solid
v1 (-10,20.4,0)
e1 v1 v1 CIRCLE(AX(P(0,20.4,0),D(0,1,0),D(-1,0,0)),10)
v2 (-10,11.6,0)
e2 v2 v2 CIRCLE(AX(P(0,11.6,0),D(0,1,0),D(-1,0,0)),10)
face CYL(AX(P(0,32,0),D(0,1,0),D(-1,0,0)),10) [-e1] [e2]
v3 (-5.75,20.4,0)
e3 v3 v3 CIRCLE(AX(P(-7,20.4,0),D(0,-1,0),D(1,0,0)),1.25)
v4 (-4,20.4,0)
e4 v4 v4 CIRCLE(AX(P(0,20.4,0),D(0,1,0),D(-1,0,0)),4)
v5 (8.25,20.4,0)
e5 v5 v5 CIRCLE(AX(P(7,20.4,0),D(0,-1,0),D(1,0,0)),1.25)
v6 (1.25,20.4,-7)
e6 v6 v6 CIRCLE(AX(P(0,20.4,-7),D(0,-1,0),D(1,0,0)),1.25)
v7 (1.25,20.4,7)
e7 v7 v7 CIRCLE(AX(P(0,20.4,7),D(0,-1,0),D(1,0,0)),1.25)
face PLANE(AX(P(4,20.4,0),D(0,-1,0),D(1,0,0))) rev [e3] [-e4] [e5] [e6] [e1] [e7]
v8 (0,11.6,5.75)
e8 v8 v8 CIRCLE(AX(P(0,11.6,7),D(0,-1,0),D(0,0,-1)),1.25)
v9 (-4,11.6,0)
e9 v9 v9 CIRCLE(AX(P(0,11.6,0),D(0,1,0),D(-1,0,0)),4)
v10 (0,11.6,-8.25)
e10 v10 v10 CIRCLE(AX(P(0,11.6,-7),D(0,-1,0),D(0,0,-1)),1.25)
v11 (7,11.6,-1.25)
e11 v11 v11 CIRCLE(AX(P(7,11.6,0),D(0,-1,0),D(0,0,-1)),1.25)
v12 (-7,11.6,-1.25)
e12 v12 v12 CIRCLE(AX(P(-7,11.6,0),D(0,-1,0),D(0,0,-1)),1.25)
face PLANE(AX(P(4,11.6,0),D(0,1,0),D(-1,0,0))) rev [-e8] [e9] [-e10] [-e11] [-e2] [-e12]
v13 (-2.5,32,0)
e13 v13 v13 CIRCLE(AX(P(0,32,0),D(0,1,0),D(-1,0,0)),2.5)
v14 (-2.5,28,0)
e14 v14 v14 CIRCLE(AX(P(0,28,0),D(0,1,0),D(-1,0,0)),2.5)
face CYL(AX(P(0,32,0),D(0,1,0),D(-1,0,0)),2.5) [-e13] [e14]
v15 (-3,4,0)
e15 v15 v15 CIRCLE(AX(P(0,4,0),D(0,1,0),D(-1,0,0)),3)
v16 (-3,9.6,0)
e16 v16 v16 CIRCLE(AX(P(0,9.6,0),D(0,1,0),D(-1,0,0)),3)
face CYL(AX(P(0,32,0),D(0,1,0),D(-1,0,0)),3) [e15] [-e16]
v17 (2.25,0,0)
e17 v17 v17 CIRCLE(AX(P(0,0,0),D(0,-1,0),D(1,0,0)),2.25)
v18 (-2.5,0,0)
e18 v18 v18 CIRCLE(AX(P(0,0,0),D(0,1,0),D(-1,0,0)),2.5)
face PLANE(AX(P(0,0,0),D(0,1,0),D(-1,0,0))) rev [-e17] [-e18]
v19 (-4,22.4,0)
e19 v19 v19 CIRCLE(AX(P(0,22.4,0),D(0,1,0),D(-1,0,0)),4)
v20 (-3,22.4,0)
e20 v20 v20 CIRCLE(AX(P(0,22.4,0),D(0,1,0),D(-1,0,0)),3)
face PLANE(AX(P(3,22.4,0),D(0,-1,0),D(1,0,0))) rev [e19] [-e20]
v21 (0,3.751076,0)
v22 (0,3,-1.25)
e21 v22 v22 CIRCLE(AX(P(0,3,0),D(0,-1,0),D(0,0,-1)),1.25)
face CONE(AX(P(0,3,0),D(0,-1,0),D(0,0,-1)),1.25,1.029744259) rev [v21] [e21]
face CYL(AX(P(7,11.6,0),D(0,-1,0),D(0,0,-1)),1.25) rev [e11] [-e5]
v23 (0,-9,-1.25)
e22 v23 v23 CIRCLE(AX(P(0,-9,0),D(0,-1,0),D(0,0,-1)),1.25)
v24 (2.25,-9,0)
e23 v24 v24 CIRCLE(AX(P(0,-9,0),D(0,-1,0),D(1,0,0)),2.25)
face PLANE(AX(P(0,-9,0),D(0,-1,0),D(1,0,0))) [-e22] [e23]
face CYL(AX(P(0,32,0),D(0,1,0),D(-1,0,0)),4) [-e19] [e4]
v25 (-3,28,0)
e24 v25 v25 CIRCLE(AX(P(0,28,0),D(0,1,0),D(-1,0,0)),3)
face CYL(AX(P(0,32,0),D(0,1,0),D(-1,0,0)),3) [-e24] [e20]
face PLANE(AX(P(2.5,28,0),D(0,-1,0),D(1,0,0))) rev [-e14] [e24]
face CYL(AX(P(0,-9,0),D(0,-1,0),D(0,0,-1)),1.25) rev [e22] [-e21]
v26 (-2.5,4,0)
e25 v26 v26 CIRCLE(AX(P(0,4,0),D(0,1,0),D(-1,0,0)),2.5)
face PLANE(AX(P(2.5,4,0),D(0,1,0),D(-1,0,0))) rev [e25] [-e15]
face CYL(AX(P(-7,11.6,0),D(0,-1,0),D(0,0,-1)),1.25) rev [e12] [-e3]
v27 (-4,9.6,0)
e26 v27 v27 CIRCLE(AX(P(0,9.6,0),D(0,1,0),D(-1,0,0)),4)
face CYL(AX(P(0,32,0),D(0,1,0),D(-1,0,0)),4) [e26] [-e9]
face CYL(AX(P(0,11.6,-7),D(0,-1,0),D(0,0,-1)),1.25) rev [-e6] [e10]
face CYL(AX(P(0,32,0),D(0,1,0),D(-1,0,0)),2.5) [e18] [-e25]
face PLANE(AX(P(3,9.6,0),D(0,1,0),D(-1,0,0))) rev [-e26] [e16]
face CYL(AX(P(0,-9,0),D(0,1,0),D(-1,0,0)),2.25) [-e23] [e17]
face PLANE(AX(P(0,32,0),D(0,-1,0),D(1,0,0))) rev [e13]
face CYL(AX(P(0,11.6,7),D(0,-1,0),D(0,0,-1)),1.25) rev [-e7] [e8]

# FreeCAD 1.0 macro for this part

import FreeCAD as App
import Part
import Sketcher

V = App.Vector
Q = App.Units.Quantity


def add_polygon(sketch, points):
    """Adds a closed chain of lines whose ends are joined by coincident constraints."""
    first, n = sketch.GeometryCount, len(points)
    for a, b in zip(points, points[1:] + points[:1]):
        sketch.addGeometry(Part.LineSegment(App.Vector(*a, 0), App.Vector(*b, 0)), False)
    for i in range(n):
        sketch.addConstraint(Sketcher.Constraint("Coincident", first + i, 2, first + (i + 1) % n, 1))

doc = App.newDocument("Part")
params = doc.addObject("Spreadsheet::Sheet", "Params")
for row, (alias, value) in enumerate([
    ("sketch1_width", "1 mm"),
    ("sketch1_width2", "6 mm"),
    ("sketch1_height", "32 mm"),
    ("sketch1_height2", "4 mm"),
    ("sketch1_height3", "2 mm"),
    ("revolution_angle", "360 deg"),
    ("sketch2_diameter", "2.5 mm"),
    ("hole_diameter", "2.5 mm"),
    ("sketch3_diameter", "4.5 mm"),
    ("pad1_length", "9 mm"),
    ("sketch4_diameter", "2.5 mm"),
    ("hole2_diameter", "2.5 mm"),
    ("hole2_depth", "12 mm"),
], start=1):
    params.set(f"A{row}", alias)
    params.set(f"B{row}", "=" + value)
    params.setAlias(f"B{row}", alias)

body = doc.addObject("PartDesign::Body", "Body")

# Sketch on XY plane
sketch1 = body.newObject("Sketcher::SketchObject", "Sketch")
sketch1.AttachmentSupport = (doc.getObject("XY_Plane"), [""])
sketch1.MapMode = "FlatFace"
add_polygon(sketch1, [(0, 32), (0, 0), (2.5, 0), (2.5, 4), (3, 4), (3, 9.6), (4, 9.6), (4, 11.6), (10, 11.6), (10, 20.4), (4, 20.4), (4, 22.4), (3, 22.4), (3, 28), (2.5, 28), (2.5, 32)])  # lines 0-15
sketch1.addConstraint(Sketcher.Constraint("Vertical", 0))
sketch1.addConstraint(Sketcher.Constraint("Horizontal", 1))
sketch1.addConstraint(Sketcher.Constraint("Vertical", 2))
sketch1.addConstraint(Sketcher.Constraint("Horizontal", 3))
sketch1.addConstraint(Sketcher.Constraint("Vertical", 4))
sketch1.addConstraint(Sketcher.Constraint("Horizontal", 5))
sketch1.addConstraint(Sketcher.Constraint("Vertical", 6))
sketch1.addConstraint(Sketcher.Constraint("Horizontal", 7))
sketch1.addConstraint(Sketcher.Constraint("Vertical", 8))
sketch1.addConstraint(Sketcher.Constraint("Horizontal", 9))
sketch1.addConstraint(Sketcher.Constraint("Vertical", 10))
sketch1.addConstraint(Sketcher.Constraint("Horizontal", 11))
sketch1.addConstraint(Sketcher.Constraint("Vertical", 12))
sketch1.addConstraint(Sketcher.Constraint("Horizontal", 13))
sketch1.addConstraint(Sketcher.Constraint("Vertical", 14))
sketch1.addConstraint(Sketcher.Constraint("Horizontal", 15))
sketch1.addConstraint(Sketcher.Constraint("Coincident", 0, 2, -1, 1))
sketch1.addConstraint(Sketcher.Constraint("Vertical", 6, 2, 9, 2))
sketch1.addConstraint(Sketcher.Constraint("Vertical", 4, 2, 11, 2))
sketch1.addConstraint(Sketcher.Constraint("Vertical", 2, 2, 13, 2))
sketch1.addConstraint(Sketcher.Constraint("Equal", 6, 10))
sketch1.addConstraint(Sketcher.Constraint("Equal", 4, 12))
sketch1.addConstraint(Sketcher.Constraint("Equal", 2, 14))
sketch1.addConstraint(Sketcher.Constraint("DistanceX", 5, 1, 5, 2, Q("1 mm")))
sketch1.addConstraint(Sketcher.Constraint("DistanceX", 7, 1, 7, 2, Q("6 mm")))
sketch1.addConstraint(Sketcher.Constraint("DistanceY", 0, 2, 0, 1, Q("32 mm")))
sketch1.addConstraint(Sketcher.Constraint("DistanceY", 2, 1, 2, 2, Q("4 mm")))
sketch1.addConstraint(Sketcher.Constraint("DistanceY", 6, 1, 6, 2, Q("2 mm")))
sketch1.addConstraint(Sketcher.Constraint("DistanceX", 1, 1, 1, 2, Q("2.5 mm")))
sketch1.addConstraint(Sketcher.Constraint("DistanceX", 3, 1, 3, 2, Q("0.5 mm")))
sketch1.addConstraint(Sketcher.Constraint("DistanceY", 4, 1, 4, 2, Q("5.6 mm")))
sketch1.setExpression("Constraints[39]", "Params.sketch1_width")
sketch1.setExpression("Constraints[40]", "Params.sketch1_width2")
sketch1.setExpression("Constraints[41]", "Params.sketch1_height")
sketch1.setExpression("Constraints[42]", "Params.sketch1_height2")
sketch1.setExpression("Constraints[43]", "Params.sketch1_height3")
revolution = body.newObject("PartDesign::Revolution", "Revolution")
revolution.Profile = sketch1
revolution.ReferenceAxis = (sketch1, ["V_Axis"])
revolution.setExpression("Angle", "Params.revolution_angle")

# Sketch on XZ plane
sketch2 = body.newObject("Sketcher::SketchObject", "Sketch001")
sketch2.AttachmentSupport = (doc.getObject("XZ_Plane"), [""])
sketch2.MapMode = "FlatFace"
sketch2.AttachmentOffset = App.Placement(V(0, 0, -11.6), App.Rotation())
sketch2.addGeometry(Part.Circle(V(0, 7, 0), V(0, 0, 1), 1.2), False)
sketch2.addConstraint(Sketcher.Constraint("PointOnObject", 0, 3, -2))
sketch2.addConstraint(Sketcher.Constraint("Diameter", 0, Q("2.5 mm")))
sketch2.addConstraint(Sketcher.Constraint("DistanceY", -1, 1, 0, 3, Q("7 mm")))
sketch2.setExpression("Constraints[1]", "Params.sketch2_diameter")
doc.recompute()
hole = body.newObject("PartDesign::Hole", "Hole")
hole.Profile = sketch2
hole.ThreadType = "None"
hole.setExpression("Diameter", "Params.hole_diameter")
hole.DepthType = "ThroughAll"
doc.recompute()

polarpattern = body.newObject("PartDesign::PolarPattern", "PolarPattern")
polarpattern.Originals = [hole]
polarpattern.Axis = (doc.getObject("Y_Axis"), [""])
polarpattern.Angle = 360
polarpattern.Occurrences = 4
body.Tip = polarpattern

# Sketch on XZ plane
sketch3 = body.newObject("Sketcher::SketchObject", "Sketch002")
sketch3.AttachmentSupport = (doc.getObject("XZ_Plane"), [""])
sketch3.MapMode = "FlatFace"
sketch3.addGeometry(Part.Circle(V(0, 0, 0), V(0, 0, 1), 2.2), False)
sketch3.addConstraint(Sketcher.Constraint("Coincident", 0, 3, -1, 1))
sketch3.addConstraint(Sketcher.Constraint("Diameter", 0, Q("4.5 mm")))
sketch3.setExpression("Constraints[1]", "Params.sketch3_diameter")
pad1 = body.newObject("PartDesign::Pad", "Pad")
pad1.Profile = sketch3
pad1.setExpression("Length", "Params.pad1_length")

# Sketch on XZ plane
sketch4 = body.newObject("Sketcher::SketchObject", "Sketch003")
sketch4.AttachmentSupport = (doc.getObject("XZ_Plane"), [""])
sketch4.MapMode = "FlatFace"
sketch4.AttachmentOffset = App.Placement(V(0, 0, 9), App.Rotation())
sketch4.addGeometry(Part.Circle(V(0, 0, 0), V(0, 0, 1), 1.2), False)
sketch4.addConstraint(Sketcher.Constraint("Coincident", 0, 3, -1, 1))
sketch4.addConstraint(Sketcher.Constraint("Diameter", 0, Q("2.5 mm")))
sketch4.setExpression("Constraints[1]", "Params.sketch4_diameter")
doc.recompute()
hole2 = body.newObject("PartDesign::Hole", "Hole001")
hole2.Profile = sketch4
hole2.ThreadType = "None"
hole2.setExpression("Diameter", "Params.hole2_diameter")
hole2.DepthType = "Dimension"
hole2.setExpression("Depth", "Params.hole2_depth")
hole2.DrillPoint = "Angled"
hole2.DrillPointAngle = 118

doc.recompute()
